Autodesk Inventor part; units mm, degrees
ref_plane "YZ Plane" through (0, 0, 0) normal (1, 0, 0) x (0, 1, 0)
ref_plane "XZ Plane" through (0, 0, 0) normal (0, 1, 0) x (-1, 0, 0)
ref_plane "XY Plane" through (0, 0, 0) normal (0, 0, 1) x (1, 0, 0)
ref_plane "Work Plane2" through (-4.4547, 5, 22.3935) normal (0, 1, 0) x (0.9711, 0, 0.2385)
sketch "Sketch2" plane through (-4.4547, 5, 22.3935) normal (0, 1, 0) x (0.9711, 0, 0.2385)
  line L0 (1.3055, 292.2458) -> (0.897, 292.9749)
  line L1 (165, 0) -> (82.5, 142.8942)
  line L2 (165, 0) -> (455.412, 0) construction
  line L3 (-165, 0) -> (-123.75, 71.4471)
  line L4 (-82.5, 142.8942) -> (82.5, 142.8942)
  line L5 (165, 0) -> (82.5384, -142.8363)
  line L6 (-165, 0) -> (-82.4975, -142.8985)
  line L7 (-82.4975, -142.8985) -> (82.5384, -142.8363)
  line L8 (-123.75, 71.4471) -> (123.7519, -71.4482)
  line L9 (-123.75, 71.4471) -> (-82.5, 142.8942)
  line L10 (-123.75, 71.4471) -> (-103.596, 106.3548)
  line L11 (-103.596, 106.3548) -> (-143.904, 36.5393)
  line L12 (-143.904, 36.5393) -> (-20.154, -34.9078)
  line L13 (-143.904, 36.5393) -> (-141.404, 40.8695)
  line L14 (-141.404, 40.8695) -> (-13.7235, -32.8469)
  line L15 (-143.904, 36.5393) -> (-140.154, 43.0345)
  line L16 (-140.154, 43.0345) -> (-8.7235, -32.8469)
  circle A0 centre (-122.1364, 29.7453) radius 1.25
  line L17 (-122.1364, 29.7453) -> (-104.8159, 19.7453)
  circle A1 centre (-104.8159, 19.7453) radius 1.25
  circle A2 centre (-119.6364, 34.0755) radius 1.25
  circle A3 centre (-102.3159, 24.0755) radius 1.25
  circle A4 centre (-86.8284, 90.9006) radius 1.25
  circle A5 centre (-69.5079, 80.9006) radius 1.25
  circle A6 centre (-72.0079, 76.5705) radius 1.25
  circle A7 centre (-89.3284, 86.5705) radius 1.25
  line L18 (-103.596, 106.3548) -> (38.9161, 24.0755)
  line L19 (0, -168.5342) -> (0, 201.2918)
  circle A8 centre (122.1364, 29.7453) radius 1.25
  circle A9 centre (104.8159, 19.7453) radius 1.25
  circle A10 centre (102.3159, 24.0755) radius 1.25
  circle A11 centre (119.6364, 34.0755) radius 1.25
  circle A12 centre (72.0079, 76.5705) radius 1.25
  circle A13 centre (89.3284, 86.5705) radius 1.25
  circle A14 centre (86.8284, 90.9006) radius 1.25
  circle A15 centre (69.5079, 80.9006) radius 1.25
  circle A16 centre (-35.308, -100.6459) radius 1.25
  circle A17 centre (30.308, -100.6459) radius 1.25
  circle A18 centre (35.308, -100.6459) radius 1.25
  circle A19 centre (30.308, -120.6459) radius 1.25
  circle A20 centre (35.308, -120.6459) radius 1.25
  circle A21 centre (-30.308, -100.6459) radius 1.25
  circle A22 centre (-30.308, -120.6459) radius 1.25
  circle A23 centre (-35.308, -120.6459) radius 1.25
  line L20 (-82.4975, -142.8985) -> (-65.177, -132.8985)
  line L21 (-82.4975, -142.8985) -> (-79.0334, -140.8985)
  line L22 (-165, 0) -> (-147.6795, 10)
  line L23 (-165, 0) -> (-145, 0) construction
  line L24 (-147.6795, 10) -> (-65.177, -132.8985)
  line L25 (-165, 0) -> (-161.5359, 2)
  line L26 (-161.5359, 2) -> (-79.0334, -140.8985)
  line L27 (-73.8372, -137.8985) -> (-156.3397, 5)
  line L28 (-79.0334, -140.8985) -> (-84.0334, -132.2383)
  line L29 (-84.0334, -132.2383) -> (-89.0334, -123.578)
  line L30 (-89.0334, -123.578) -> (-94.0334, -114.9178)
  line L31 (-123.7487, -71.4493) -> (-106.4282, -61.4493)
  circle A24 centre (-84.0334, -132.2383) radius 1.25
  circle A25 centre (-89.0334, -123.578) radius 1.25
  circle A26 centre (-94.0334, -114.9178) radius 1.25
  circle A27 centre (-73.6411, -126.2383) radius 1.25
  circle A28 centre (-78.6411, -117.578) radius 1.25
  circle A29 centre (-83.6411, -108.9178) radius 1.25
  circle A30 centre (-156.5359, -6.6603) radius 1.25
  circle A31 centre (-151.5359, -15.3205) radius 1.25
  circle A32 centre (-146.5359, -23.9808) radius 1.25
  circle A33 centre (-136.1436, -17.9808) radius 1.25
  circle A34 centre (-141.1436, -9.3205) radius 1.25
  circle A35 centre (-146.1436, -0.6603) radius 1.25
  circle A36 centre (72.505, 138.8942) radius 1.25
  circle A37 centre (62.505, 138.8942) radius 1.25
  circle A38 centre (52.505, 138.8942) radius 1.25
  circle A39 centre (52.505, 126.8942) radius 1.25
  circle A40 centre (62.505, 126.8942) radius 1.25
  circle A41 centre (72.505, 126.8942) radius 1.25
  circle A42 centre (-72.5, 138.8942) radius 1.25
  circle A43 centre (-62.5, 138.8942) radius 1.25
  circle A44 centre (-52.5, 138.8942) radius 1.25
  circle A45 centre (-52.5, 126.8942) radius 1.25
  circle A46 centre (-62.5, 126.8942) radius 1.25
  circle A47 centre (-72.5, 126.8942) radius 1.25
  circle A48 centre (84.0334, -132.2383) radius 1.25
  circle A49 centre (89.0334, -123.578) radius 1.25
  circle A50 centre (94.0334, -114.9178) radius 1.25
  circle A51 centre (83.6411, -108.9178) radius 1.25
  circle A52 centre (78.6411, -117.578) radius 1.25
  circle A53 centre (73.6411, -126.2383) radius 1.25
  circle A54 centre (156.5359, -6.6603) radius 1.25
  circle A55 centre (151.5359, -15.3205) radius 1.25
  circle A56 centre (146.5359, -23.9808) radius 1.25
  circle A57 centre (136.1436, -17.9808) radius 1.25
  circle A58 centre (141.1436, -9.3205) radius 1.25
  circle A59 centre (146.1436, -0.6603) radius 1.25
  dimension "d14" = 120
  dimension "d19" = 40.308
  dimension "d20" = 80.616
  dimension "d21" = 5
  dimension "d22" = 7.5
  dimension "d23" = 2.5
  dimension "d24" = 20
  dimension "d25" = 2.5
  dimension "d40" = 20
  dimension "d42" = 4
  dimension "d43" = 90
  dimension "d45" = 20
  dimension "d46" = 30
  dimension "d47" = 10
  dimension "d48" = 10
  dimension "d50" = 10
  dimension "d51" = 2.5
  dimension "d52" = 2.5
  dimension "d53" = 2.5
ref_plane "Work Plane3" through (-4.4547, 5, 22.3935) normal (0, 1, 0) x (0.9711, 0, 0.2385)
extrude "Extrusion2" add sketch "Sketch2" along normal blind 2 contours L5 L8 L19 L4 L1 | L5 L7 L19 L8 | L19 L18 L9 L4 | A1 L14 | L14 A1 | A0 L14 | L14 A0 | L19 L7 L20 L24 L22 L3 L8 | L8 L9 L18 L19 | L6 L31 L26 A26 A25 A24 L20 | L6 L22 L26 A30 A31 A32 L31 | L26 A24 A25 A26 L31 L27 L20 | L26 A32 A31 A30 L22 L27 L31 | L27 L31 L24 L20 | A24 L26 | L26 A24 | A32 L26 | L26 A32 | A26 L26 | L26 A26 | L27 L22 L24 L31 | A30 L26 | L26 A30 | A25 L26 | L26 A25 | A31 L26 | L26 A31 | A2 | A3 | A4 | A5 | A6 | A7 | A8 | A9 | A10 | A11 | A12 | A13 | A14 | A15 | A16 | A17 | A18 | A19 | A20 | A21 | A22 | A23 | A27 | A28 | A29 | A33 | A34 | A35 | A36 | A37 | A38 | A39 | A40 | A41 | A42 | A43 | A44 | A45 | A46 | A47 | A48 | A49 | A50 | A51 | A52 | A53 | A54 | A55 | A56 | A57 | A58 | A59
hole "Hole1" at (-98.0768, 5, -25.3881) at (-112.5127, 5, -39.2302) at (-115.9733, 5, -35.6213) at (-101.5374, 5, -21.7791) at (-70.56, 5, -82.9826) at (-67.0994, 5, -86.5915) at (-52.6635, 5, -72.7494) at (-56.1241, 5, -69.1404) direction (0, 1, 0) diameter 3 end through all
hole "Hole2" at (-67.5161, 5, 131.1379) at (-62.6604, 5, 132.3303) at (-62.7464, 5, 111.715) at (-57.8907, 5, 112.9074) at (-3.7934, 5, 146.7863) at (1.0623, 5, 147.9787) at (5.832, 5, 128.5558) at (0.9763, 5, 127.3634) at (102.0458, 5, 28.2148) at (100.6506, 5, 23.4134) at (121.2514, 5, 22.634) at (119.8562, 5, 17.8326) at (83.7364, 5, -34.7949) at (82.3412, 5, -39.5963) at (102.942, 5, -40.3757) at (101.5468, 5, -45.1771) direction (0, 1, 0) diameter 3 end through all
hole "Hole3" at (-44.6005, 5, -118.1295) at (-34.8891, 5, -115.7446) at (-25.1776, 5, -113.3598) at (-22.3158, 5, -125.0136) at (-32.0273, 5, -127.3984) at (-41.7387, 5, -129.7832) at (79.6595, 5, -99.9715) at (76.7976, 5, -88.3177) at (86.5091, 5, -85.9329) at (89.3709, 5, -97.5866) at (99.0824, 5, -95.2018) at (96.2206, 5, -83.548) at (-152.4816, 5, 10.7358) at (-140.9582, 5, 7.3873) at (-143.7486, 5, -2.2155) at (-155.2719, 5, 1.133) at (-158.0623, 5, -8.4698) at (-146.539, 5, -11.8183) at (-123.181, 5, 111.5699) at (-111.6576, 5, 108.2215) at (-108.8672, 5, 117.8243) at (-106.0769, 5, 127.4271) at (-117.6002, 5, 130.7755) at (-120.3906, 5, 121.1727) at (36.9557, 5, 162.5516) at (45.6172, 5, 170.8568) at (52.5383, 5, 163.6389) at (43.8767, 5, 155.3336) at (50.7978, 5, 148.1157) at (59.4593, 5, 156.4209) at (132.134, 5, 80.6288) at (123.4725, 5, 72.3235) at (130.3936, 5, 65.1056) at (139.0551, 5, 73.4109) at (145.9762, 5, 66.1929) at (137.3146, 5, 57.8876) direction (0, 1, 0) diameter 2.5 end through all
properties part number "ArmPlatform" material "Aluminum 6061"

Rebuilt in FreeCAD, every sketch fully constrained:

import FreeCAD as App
import Part
import Sketcher

doc = App.newDocument("Part")
body = doc.addObject("PartDesign::Body", "Body")

# Sketch on XZ plane
sketch1 = body.newObject("Sketcher::SketchObject", "Sketch")
sketch1.AttachmentSupport = (doc.getObject("XZ_Plane"), [""])
sketch1.MapMode = "FlatFace"
sketch1.AttachmentOffset = App.Placement(App.Vector(0, 0, -5), App.Rotation())
sketch1.addGeometry(Part.LineSegment(App.Vector(155.783413, 61.747624, 0), App.Vector(109.74603, -96.699723, 0)), False)
sketch1.addGeometry(Part.LineSegment(App.Vector(109.74603, -96.699723, 0), App.Vector(-50.492083, -136.053847, 0)), False)
sketch1.addGeometry(Part.LineSegment(App.Vector(-50.492083, -136.053847, 0), App.Vector(-132.030014, -51.022755, 0)), False)
sketch1.addGeometry(Part.LineSegment(App.Vector(-132.030014, -51.022755, 0), App.Vector(-164.692813, -16.960624, 0)), False)
sketch1.addGeometry(Part.LineSegment(App.Vector(-164.692813, -16.960624, 0), App.Vector(-118.654028, 141.491495, 0)), False)
sketch1.addGeometry(Part.LineSegment(App.Vector(-118.654028, 141.491495, 0), App.Vector(41.633785, 180.793777, 0)), False)
sketch1.addGeometry(Part.LineSegment(App.Vector(41.633785, 180.793777, 0), App.Vector(155.783413, 61.747624, 0)), False)
sketch1.addConstraint(Sketcher.Constraint("Coincident", 0, 2, 1, 1))
sketch1.addConstraint(Sketcher.Constraint("Coincident", 1, 2, 2, 1))
sketch1.addConstraint(Sketcher.Constraint("Coincident", 2, 2, 3, 1))
sketch1.addConstraint(Sketcher.Constraint("Coincident", 3, 2, 4, 1))
sketch1.addConstraint(Sketcher.Constraint("Coincident", 4, 2, 5, 1))
sketch1.addConstraint(Sketcher.Constraint("Coincident", 5, 2, 6, 1))
sketch1.addConstraint(Sketcher.Constraint("Coincident", 6, 2, 0, 1))
sketch1.addConstraint(Sketcher.Constraint("Distance", 0, 165.0))
sketch1.addConstraint(Sketcher.Constraint("Distance", 1, 165.0))
sketch1.addConstraint(Sketcher.Constraint("DistanceX", 4, 2, 0, 2, 228.4))
sketch1.addConstraint(Sketcher.Constraint("DistanceX", 2, 2, -1, 1, 132.03))
sketch1.addConstraint(Sketcher.Constraint("Distance", 2, 117.808))
sketch1.addConstraint(Sketcher.Constraint("Distance", 3, 47.192))
sketch1.addConstraint(Sketcher.Constraint("Distance", 4, 165.005))
sketch1.addConstraint(Sketcher.Constraint("Distance", 5, 165.036))
sketch1.addConstraint(Sketcher.Constraint("DistanceX", -1, 1, 0, 2, 109.746))
sketch1.addConstraint(Sketcher.Constraint("DistanceX", 1, 2, -1, 1, 50.492))
sketch1.addConstraint(Sketcher.Constraint("DistanceY", 0, 2, 3, 2, 79.739))
sketch1.addConstraint(Sketcher.Constraint("Distance", 6, 164.9307))
sketch1.addConstraint(Sketcher.Constraint("DistanceY", 0, 2, -1, 1, 96.6997))
sketch1.addConstraint(Sketcher.Constraint("DistanceX", -1, 1, 5, 2, 41.6338))
pad1 = body.newObject("PartDesign::Pad", "Pad")
pad1.Profile = sketch1
pad1.Length = 2
pad1.Reversed = True

# Sketch on XZ plane
sketch2 = body.newObject("Sketcher::SketchObject", "Sketch001")
sketch2.AttachmentSupport = (doc.getObject("XZ_Plane"), [""])
sketch2.MapMode = "FlatFace"
sketch2.AttachmentOffset = App.Placement(App.Vector(0, 0, -5), App.Rotation())
sketch2.addGeometry(Part.Circle(App.Vector(-98.0768, -25.3881, 0), App.Vector(0, 0, 1), 1.5), False)
sketch2.addGeometry(Part.Circle(App.Vector(-112.5127, -39.2302, 0), App.Vector(0, 0, 1), 1.5), False)
sketch2.addGeometry(Part.Circle(App.Vector(-115.9733, -35.6213, 0), App.Vector(0, 0, 1), 1.5), False)
sketch2.addGeometry(Part.Circle(App.Vector(-101.5374, -21.7791, 0), App.Vector(0, 0, 1), 1.5), False)
sketch2.addGeometry(Part.Circle(App.Vector(-70.56, -82.9826, 0), App.Vector(0, 0, 1), 1.5), False)
sketch2.addGeometry(Part.Circle(App.Vector(-67.0994, -86.5915, 0), App.Vector(0, 0, 1), 1.5), False)
sketch2.addGeometry(Part.Circle(App.Vector(-52.6635, -72.7494, 0), App.Vector(0, 0, 1), 1.5), False)
sketch2.addGeometry(Part.Circle(App.Vector(-56.1241, -69.1404, 0), App.Vector(0, 0, 1), 1.5), False)
sketch2.addConstraint(Sketcher.Constraint("Equal", 0, 1))
sketch2.addConstraint(Sketcher.Constraint("Equal", 1, 2))
sketch2.addConstraint(Sketcher.Constraint("Equal", 2, 3))
sketch2.addConstraint(Sketcher.Constraint("Equal", 3, 4))
sketch2.addConstraint(Sketcher.Constraint("Equal", 4, 5))
sketch2.addConstraint(Sketcher.Constraint("Equal", 5, 6))
sketch2.addConstraint(Sketcher.Constraint("Equal", 6, 7))
sketch2.addConstraint(Sketcher.Constraint("Diameter", 0, 3.0))
sketch2.addConstraint(Sketcher.Constraint("DistanceX", 4, 3, -1, 1, 70.56))
sketch2.addConstraint(Sketcher.Constraint("DistanceY", 0, 3, -1, 1, 25.388))
sketch2.addConstraint(Sketcher.Constraint("DistanceY", 3, 3, -1, 1, 21.779))
sketch2.addConstraint(Sketcher.Constraint("DistanceX", 7, 3, -1, 1, 56.124))
sketch2.addConstraint(Sketcher.Constraint("DistanceX", 1, 3, 0, 3, 14.436))
sketch2.addConstraint(Sketcher.Constraint("DistanceY", 1, 3, 0, 3, 13.842))
sketch2.addConstraint(Sketcher.Constraint("DistanceY", 1, 3, 2, 3, 3.609))
sketch2.addConstraint(Sketcher.Constraint("DistanceX", 2, 3, 3, 3, 14.436))
sketch2.addConstraint(Sketcher.Constraint("DistanceY", 5, 3, 4, 3, 3.609))
sketch2.addConstraint(Sketcher.Constraint("DistanceX", 2, 3, 5, 3, 48.874))
sketch2.addConstraint(Sketcher.Constraint("DistanceX", 5, 3, 6, 3, 14.436))
sketch2.addConstraint(Sketcher.Constraint("DistanceY", 5, 3, 6, 3, 13.842))
sketch2.addConstraint(Sketcher.Constraint("DistanceY", 6, 3, 7, 3, 3.609))
sketch2.addConstraint(Sketcher.Constraint("DistanceX", 0, 3, -1, 1, 98.0768))
sketch2.addConstraint(Sketcher.Constraint("DistanceX", 2, 3, -1, 1, 115.9733))
sketch2.addConstraint(Sketcher.Constraint("DistanceY", 4, 3, -1, 1, 82.9826))
doc.recompute()
hole = body.newObject("PartDesign::Hole", "Hole")
hole.Profile = sketch2
hole.ThreadType = "None"
hole.Diameter = 3
hole.DepthType = "ThroughAll"

# Sketch on XZ plane
sketch3 = body.newObject("Sketcher::SketchObject", "Sketch002")
sketch3.AttachmentSupport = (doc.getObject("XZ_Plane"), [""])
sketch3.MapMode = "FlatFace"
sketch3.AttachmentOffset = App.Placement(App.Vector(0, 0, -5), App.Rotation())
sketch3.addGeometry(Part.Circle(App.Vector(-67.5161, 131.1379, 0), App.Vector(0, 0, 1), 1.5), False)
sketch3.addGeometry(Part.Circle(App.Vector(-62.6604, 132.3303, 0), App.Vector(0, 0, 1), 1.5), False)
sketch3.addGeometry(Part.Circle(App.Vector(-62.7464, 111.715, 0), App.Vector(0, 0, 1), 1.5), False)
sketch3.addGeometry(Part.Circle(App.Vector(-57.8907, 112.9074, 0), App.Vector(0, 0, 1), 1.5), False)
sketch3.addGeometry(Part.Circle(App.Vector(-3.7934, 146.7863, 0), App.Vector(0, 0, 1), 1.5), False)
sketch3.addGeometry(Part.Circle(App.Vector(1.0623, 147.9787, 0), App.Vector(0, 0, 1), 1.5), False)
sketch3.addGeometry(Part.Circle(App.Vector(5.832, 128.5558, 0), App.Vector(0, 0, 1), 1.5), False)
sketch3.addGeometry(Part.Circle(App.Vector(0.9763, 127.3634, 0), App.Vector(0, 0, 1), 1.5), False)
sketch3.addGeometry(Part.Circle(App.Vector(102.0458, 28.2148, 0), App.Vector(0, 0, 1), 1.5), False)
sketch3.addGeometry(Part.Circle(App.Vector(100.6506, 23.4134, 0), App.Vector(0, 0, 1), 1.5), False)
sketch3.addGeometry(Part.Circle(App.Vector(121.2514, 22.634, 0), App.Vector(0, 0, 1), 1.5), False)
sketch3.addGeometry(Part.Circle(App.Vector(119.8562, 17.8326, 0), App.Vector(0, 0, 1), 1.5), False)
sketch3.addGeometry(Part.Circle(App.Vector(83.7364, -34.7949, 0), App.Vector(0, 0, 1), 1.5), False)
sketch3.addGeometry(Part.Circle(App.Vector(82.3412, -39.5963, 0), App.Vector(0, 0, 1), 1.5), False)
sketch3.addGeometry(Part.Circle(App.Vector(102.942, -40.3757, 0), App.Vector(0, 0, 1), 1.5), False)
sketch3.addGeometry(Part.Circle(App.Vector(101.5468, -45.1771, 0), App.Vector(0, 0, 1), 1.5), False)
sketch3.addConstraint(Sketcher.Constraint("Equal", 0, 1))
sketch3.addConstraint(Sketcher.Constraint("Equal", 1, 2))
sketch3.addConstraint(Sketcher.Constraint("Equal", 2, 3))
sketch3.addConstraint(Sketcher.Constraint("Equal", 3, 4))
sketch3.addConstraint(Sketcher.Constraint("Equal", 4, 5))
sketch3.addConstraint(Sketcher.Constraint("Equal", 5, 6))
sketch3.addConstraint(Sketcher.Constraint("Equal", 6, 7))
sketch3.addConstraint(Sketcher.Constraint("Equal", 7, 8))
sketch3.addConstraint(Sketcher.Constraint("Equal", 8, 9))
sketch3.addConstraint(Sketcher.Constraint("Equal", 9, 10))
sketch3.addConstraint(Sketcher.Constraint("Equal", 10, 11))
sketch3.addConstraint(Sketcher.Constraint("Equal", 11, 12))
sketch3.addConstraint(Sketcher.Constraint("Equal", 12, 13))
sketch3.addConstraint(Sketcher.Constraint("Equal", 13, 14))
sketch3.addConstraint(Sketcher.Constraint("Equal", 14, 15))
sketch3.addConstraint(Sketcher.Constraint("Diameter", 0, 3.0))
sketch3.addConstraint(Sketcher.Constraint("DistanceY", 9, 3, 7, 3, 103.95))
sketch3.addConstraint(Sketcher.Constraint("DistanceX", 7, 3, 11, 3, 118.88))
sketch3.addConstraint(Sketcher.Constraint("DistanceX", 0, 3, -1, 1, 67.516))
sketch3.addConstraint(Sketcher.Constraint("DistanceY", -1, 1, 0, 3, 131.138))
sketch3.addConstraint(Sketcher.Constraint("DistanceY", -1, 1, 2, 3, 111.715))
sketch3.addConstraint(Sketcher.Constraint("DistanceX", -1, 1, 6, 3, 5.832))
sketch3.addConstraint(Sketcher.Constraint("DistanceY", -1, 1, 10, 3, 22.634))
sketch3.addConstraint(Sketcher.Constraint("DistanceY", 12, 3, -1, 1, 34.795))
sketch3.addConstraint(Sketcher.Constraint("DistanceX", -1, 1, 14, 3, 102.942))
sketch3.addConstraint(Sketcher.Constraint("DistanceY", 15, 3, -1, 1, 45.177))
sketch3.addConstraint(Sketcher.Constraint("DistanceX", 2, 3, 1, 3, 0.086))
sketch3.addConstraint(Sketcher.Constraint("DistanceY", 3, 3, 1, 3, 19.423))
sketch3.addConstraint(Sketcher.Constraint("DistanceX", 1, 3, 4, 3, 58.867))
sketch3.addConstraint(Sketcher.Constraint("DistanceY", 1, 3, 4, 3, 14.456))
sketch3.addConstraint(Sketcher.Constraint("DistanceX", 3, 3, 5, 3, 58.953))
sketch3.addConstraint(Sketcher.Constraint("DistanceY", 6, 3, 5, 3, 19.423))
sketch3.addConstraint(Sketcher.Constraint("DistanceY", 7, 3, 4, 3, 19.423))
sketch3.addConstraint(Sketcher.Constraint("DistanceX", 7, 3, 5, 3, 0.086))
sketch3.addConstraint(Sketcher.Constraint("DistanceY", 8, 3, 6, 3, 100.341))
sketch3.addConstraint(Sketcher.Constraint("DistanceX", 4, 3, 9, 3, 104.444))
sketch3.addConstraint(Sketcher.Constraint("DistanceX", 7, 3, 10, 3, 120.275))
sketch3.addConstraint(Sketcher.Constraint("DistanceX", 12, 3, 10, 3, 37.515))
sketch3.addConstraint(Sketcher.Constraint("DistanceX", 13, 3, 11, 3, 37.515))
sketch3.addConstraint(Sketcher.Constraint("DistanceY", 13, 3, 11, 3, 57.429))
sketch3.addConstraint(Sketcher.Constraint("DistanceY", 13, 3, 8, 3, 67.811))
sketch3.addConstraint(Sketcher.Constraint("DistanceY", 14, 3, 9, 3, 63.789))
sketch3.addConstraint(Sketcher.Constraint("DistanceX", 1, 3, -1, 1, 62.6604))
sketch3.addConstraint(Sketcher.Constraint("DistanceY", -1, 1, 1, 3, 132.3303))
sketch3.addConstraint(Sketcher.Constraint("DistanceX", 3, 3, -1, 1, 57.8907))
sketch3.addConstraint(Sketcher.Constraint("DistanceY", -1, 1, 5, 3, 147.9787))
sketch3.addConstraint(Sketcher.Constraint("DistanceX", -1, 1, 8, 3, 102.0458))
sketch3.addConstraint(Sketcher.Constraint("DistanceX", -1, 1, 15, 3, 101.5468))
doc.recompute()
hole2 = body.newObject("PartDesign::Hole", "Hole001")
hole2.Profile = sketch3
hole2.ThreadType = "None"
hole2.Diameter = 3
hole2.DepthType = "ThroughAll"

# Sketch on XZ plane
sketch4 = body.newObject("Sketcher::SketchObject", "Sketch003")
sketch4.AttachmentSupport = (doc.getObject("XZ_Plane"), [""])
sketch4.MapMode = "FlatFace"
sketch4.AttachmentOffset = App.Placement(App.Vector(0, 0, -5), App.Rotation())
sketch4.addGeometry(Part.Circle(App.Vector(-44.6005, -118.1295, 0), App.Vector(0, 0, 1), 1.25), False)
sketch4.addGeometry(Part.Circle(App.Vector(-34.8891, -115.7446, 0), App.Vector(0, 0, 1), 1.25), False)
sketch4.addGeometry(Part.Circle(App.Vector(-25.1776, -113.3598, 0), App.Vector(0, 0, 1), 1.25), False)
sketch4.addGeometry(Part.Circle(App.Vector(-22.3158, -125.0136, 0), App.Vector(0, 0, 1), 1.25), False)
sketch4.addGeometry(Part.Circle(App.Vector(-32.0273, -127.3984, 0), App.Vector(0, 0, 1), 1.25), False)
sketch4.addGeometry(Part.Circle(App.Vector(-41.7387, -129.7832, 0), App.Vector(0, 0, 1), 1.25), False)
sketch4.addGeometry(Part.Circle(App.Vector(79.6595, -99.9715, 0), App.Vector(0, 0, 1), 1.25), False)
sketch4.addGeometry(Part.Circle(App.Vector(76.7976, -88.3177, 0), App.Vector(0, 0, 1), 1.25), False)
sketch4.addGeometry(Part.Circle(App.Vector(86.5091, -85.9329, 0), App.Vector(0, 0, 1), 1.25), False)
sketch4.addGeometry(Part.Circle(App.Vector(89.3709, -97.5866, 0), App.Vector(0, 0, 1), 1.25), False)
sketch4.addGeometry(Part.Circle(App.Vector(99.0824, -95.2018, 0), App.Vector(0, 0, 1), 1.25), False)
sketch4.addGeometry(Part.Circle(App.Vector(96.2206, -83.548, 0), App.Vector(0, 0, 1), 1.25), False)
sketch4.addGeometry(Part.Circle(App.Vector(-152.4816, 10.7358, 0), App.Vector(0, 0, 1), 1.25), False)
sketch4.addGeometry(Part.Circle(App.Vector(-140.9582, 7.3873, 0), App.Vector(0, 0, 1), 1.25), False)
sketch4.addGeometry(Part.Circle(App.Vector(-143.7486, -2.2155, 0), App.Vector(0, 0, 1), 1.25), False)
sketch4.addGeometry(Part.Circle(App.Vector(-155.2719, 1.133, 0), App.Vector(0, 0, 1), 1.25), False)
sketch4.addGeometry(Part.Circle(App.Vector(-158.0623, -8.4698, 0), App.Vector(0, 0, 1), 1.25), False)
sketch4.addGeometry(Part.Circle(App.Vector(-146.539, -11.8183, 0), App.Vector(0, 0, 1), 1.25), False)
sketch4.addGeometry(Part.Circle(App.Vector(-123.181, 111.5699, 0), App.Vector(0, 0, 1), 1.25), False)
sketch4.addGeometry(Part.Circle(App.Vector(-111.6576, 108.2215, 0), App.Vector(0, 0, 1), 1.25), False)
sketch4.addGeometry(Part.Circle(App.Vector(-108.8672, 117.8243, 0), App.Vector(0, 0, 1), 1.25), False)
sketch4.addGeometry(Part.Circle(App.Vector(-106.0769, 127.4271, 0), App.Vector(0, 0, 1), 1.25), False)
sketch4.addGeometry(Part.Circle(App.Vector(-117.6002, 130.7755, 0), App.Vector(0, 0, 1), 1.25), False)
sketch4.addGeometry(Part.Circle(App.Vector(-120.3906, 121.1727, 0), App.Vector(0, 0, 1), 1.25), False)
sketch4.addGeometry(Part.Circle(App.Vector(36.9557, 162.5516, 0), App.Vector(0, 0, 1), 1.25), False)
sketch4.addGeometry(Part.Circle(App.Vector(45.6172, 170.8568, 0), App.Vector(0, 0, 1), 1.25), False)
sketch4.addGeometry(Part.Circle(App.Vector(52.5383, 163.6389, 0), App.Vector(0, 0, 1), 1.25), False)
sketch4.addGeometry(Part.Circle(App.Vector(43.8767, 155.3336, 0), App.Vector(0, 0, 1), 1.25), False)
sketch4.addGeometry(Part.Circle(App.Vector(50.7978, 148.1157, 0), App.Vector(0, 0, 1), 1.25), False)
sketch4.addGeometry(Part.Circle(App.Vector(59.4593, 156.4209, 0), App.Vector(0, 0, 1), 1.25), False)
sketch4.addGeometry(Part.Circle(App.Vector(132.134, 80.6288, 0), App.Vector(0, 0, 1), 1.25), False)
sketch4.addGeometry(Part.Circle(App.Vector(123.4725, 72.3235, 0), App.Vector(0, 0, 1), 1.25), False)
sketch4.addGeometry(Part.Circle(App.Vector(130.3936, 65.1056, 0), App.Vector(0, 0, 1), 1.25), False)
sketch4.addGeometry(Part.Circle(App.Vector(139.0551, 73.4109, 0), App.Vector(0, 0, 1), 1.25), False)
sketch4.addGeometry(Part.Circle(App.Vector(145.9762, 66.1929, 0), App.Vector(0, 0, 1), 1.25), False)
sketch4.addGeometry(Part.Circle(App.Vector(137.3146, 57.8876, 0), App.Vector(0, 0, 1), 1.25), False)
sketch4.addConstraint(Sketcher.Constraint("Equal", 0, 1))
sketch4.addConstraint(Sketcher.Constraint("Equal", 1, 2))
sketch4.addConstraint(Sketcher.Constraint("Equal", 2, 3))
sketch4.addConstraint(Sketcher.Constraint("Equal", 3, 4))
sketch4.addConstraint(Sketcher.Constraint("Equal", 4, 5))
sketch4.addConstraint(Sketcher.Constraint("Equal", 5, 6))
sketch4.addConstraint(Sketcher.Constraint("Equal", 6, 7))
sketch4.addConstraint(Sketcher.Constraint("Equal", 7, 8))
sketch4.addConstraint(Sketcher.Constraint("Equal", 8, 9))
sketch4.addConstraint(Sketcher.Constraint("Equal", 9, 10))
sketch4.addConstraint(Sketcher.Constraint("Equal", 10, 11))
sketch4.addConstraint(Sketcher.Constraint("Equal", 11, 12))
sketch4.addConstraint(Sketcher.Constraint("Equal", 12, 13))
sketch4.addConstraint(Sketcher.Constraint("Equal", 13, 14))
sketch4.addConstraint(Sketcher.Constraint("Equal", 14, 15))
sketch4.addConstraint(Sketcher.Constraint("Equal", 15, 16))
sketch4.addConstraint(Sketcher.Constraint("Equal", 16, 17))
sketch4.addConstraint(Sketcher.Constraint("Equal", 17, 18))
sketch4.addConstraint(Sketcher.Constraint("Equal", 18, 19))
sketch4.addConstraint(Sketcher.Constraint("Equal", 19, 20))
sketch4.addConstraint(Sketcher.Constraint("Equal", 20, 21))
sketch4.addConstraint(Sketcher.Constraint("Equal", 21, 22))
sketch4.addConstraint(Sketcher.Constraint("Equal", 22, 23))
sketch4.addConstraint(Sketcher.Constraint("Equal", 23, 24))
sketch4.addConstraint(Sketcher.Constraint("Equal", 24, 25))
sketch4.addConstraint(Sketcher.Constraint("Equal", 25, 26))
sketch4.addConstraint(Sketcher.Constraint("Equal", 26, 27))
sketch4.addConstraint(Sketcher.Constraint("Equal", 27, 28))
sketch4.addConstraint(Sketcher.Constraint("Equal", 28, 29))
sketch4.addConstraint(Sketcher.Constraint("Equal", 29, 30))
sketch4.addConstraint(Sketcher.Constraint("Equal", 30, 31))
sketch4.addConstraint(Sketcher.Constraint("Equal", 31, 32))
sketch4.addConstraint(Sketcher.Constraint("Equal", 32, 33))
sketch4.addConstraint(Sketcher.Constraint("Equal", 33, 34))
sketch4.addConstraint(Sketcher.Constraint("Equal", 34, 35))
sketch4.addConstraint(Sketcher.Constraint("Diameter", 0, 2.5))
sketch4.addConstraint(Sketcher.Constraint("DistanceY", -1, 1, 18, 3, 111.57))
sketch4.addConstraint(Sketcher.Constraint("DistanceY", 19, 3, 24, 3, 54.33))
sketch4.addConstraint(Sketcher.Constraint("DistanceY", 30, 3, 26, 3, 83.01))
sketch4.addConstraint(Sketcher.Constraint("DistanceY", 31, 3, 27, 3, 83.01))
sketch4.addConstraint(Sketcher.Constraint("DistanceY", 32, 3, 28, 3, 83.01))
sketch4.addConstraint(Sketcher.Constraint("DistanceY", 33, 3, 29, 3, 83.01))
sketch4.addConstraint(Sketcher.Constraint("DistanceX", 1, 3, -1, 1, 34.889))
sketch4.addConstraint(Sketcher.Constraint("DistanceX", -1, 1, 8, 3, 86.509))
sketch4.addConstraint(Sketcher.Constraint("DistanceY", 8, 3, -1, 1, 85.933))
sketch4.addConstraint(Sketcher.Constraint("DistanceX", -1, 1, 9, 3, 89.371))
sketch4.addConstraint(Sketcher.Constraint("DistanceY", 11, 3, -1, 1, 83.548))
sketch4.addConstraint(Sketcher.Constraint("DistanceX", 15, 3, -1, 1, 155.272))
sketch4.addConstraint(Sketcher.Constraint("DistanceY", -1, 1, 15, 3, 1.133))
sketch4.addConstraint(Sketcher.Constraint("DistanceX", 17, 3, -1, 1, 146.539))
sketch4.addConstraint(Sketcher.Constraint("DistanceX", 18, 3, -1, 1, 123.181))
sketch4.addConstraint(Sketcher.Constraint("DistanceX", 21, 3, -1, 1, 106.077))
sketch4.addConstraint(Sketcher.Constraint("DistanceY", -1, 1, 21, 3, 127.427))
sketch4.addConstraint(Sketcher.Constraint("DistanceY", -1, 1, 26, 3, 163.639))
sketch4.addConstraint(Sketcher.Constraint("DistanceY", -1, 1, 29, 3, 156.421))
sketch4.addConstraint(Sketcher.Constraint("DistanceX", -1, 1, 30, 3, 132.134))
sketch4.addConstraint(Sketcher.Constraint("DistanceX", -1, 1, 33, 3, 139.055))
sketch4.addConstraint(Sketcher.Constraint("DistanceY", -1, 1, 34, 3, 66.193))
sketch4.addConstraint(Sketcher.Constraint("DistanceY", 0, 3, 1, 3, 2.385))
sketch4.addConstraint(Sketcher.Constraint("DistanceX", 0, 3, 2, 3, 19.423))
sketch4.addConstraint(Sketcher.Constraint("DistanceY", 3, 3, 1, 3, 9.269))
sketch4.addConstraint(Sketcher.Constraint("DistanceY", 4, 3, 0, 3, 9.269))
sketch4.addConstraint(Sketcher.Constraint("DistanceX", 5, 3, 3, 3, 19.423))
sketch4.addConstraint(Sketcher.Constraint("DistanceX", 5, 3, 2, 3, 16.561))
sketch4.addConstraint(Sketcher.Constraint("DistanceY", 3, 3, 6, 3, 25.042))
sketch4.addConstraint(Sketcher.Constraint("DistanceX", 2, 3, 6, 3, 104.837))
sketch4.addConstraint(Sketcher.Constraint("DistanceX", 7, 3, 6, 3, 2.862))
sketch4.addConstraint(Sketcher.Constraint("DistanceY", 2, 3, 7, 3, 25.042))
sketch4.addConstraint(Sketcher.Constraint("DistanceY", 3, 3, 7, 3, 36.696))
sketch4.addConstraint(Sketcher.Constraint("DistanceX", 4, 3, 7, 3, 108.825))
sketch4.addConstraint(Sketcher.Constraint("DistanceY", 2, 3, 8, 3, 27.427))
sketch4.addConstraint(Sketcher.Constraint("DistanceX", 3, 3, 8, 3, 108.825))
sketch4.addConstraint(Sketcher.Constraint("DistanceY", 6, 3, 9, 3, 2.385))
sketch4.addConstraint(Sketcher.Constraint("DistanceY", 10, 3, 8, 3, 9.269))
sketch4.addConstraint(Sketcher.Constraint("DistanceX", 6, 3, 10, 3, 19.423))
sketch4.addConstraint(Sketcher.Constraint("DistanceX", 7, 3, 11, 3, 19.423))
sketch4.addConstraint(Sketcher.Constraint("DistanceX", 12, 3, 0, 3, 107.881))
sketch4.addConstraint(Sketcher.Constraint("DistanceY", 5, 3, 12, 3, 140.519))
sketch4.addConstraint(Sketcher.Constraint("DistanceX", 13, 3, 1, 3, 106.069))
sketch4.addConstraint(Sketcher.Constraint("DistanceY", 1, 3, 13, 3, 123.132))
sketch4.addConstraint(Sketcher.Constraint("DistanceX", 12, 3, 14, 3, 8.733))
sketch4.addConstraint(Sketcher.Constraint("DistanceY", 0, 3, 14, 3, 115.914))
sketch4.addConstraint(Sketcher.Constraint("DistanceX", 16, 3, 13, 3, 17.104))
sketch4.addConstraint(Sketcher.Constraint("DistanceY", 16, 3, 13, 3, 15.857))
sketch4.addConstraint(Sketcher.Constraint("DistanceY", 17, 3, 12, 3, 22.554))
sketch4.addConstraint(Sketcher.Constraint("DistanceY", 12, 3, 18, 3, 100.834))
sketch4.addConstraint(Sketcher.Constraint("DistanceX", 12, 3, 19, 3, 40.824))
sketch4.addConstraint(Sketcher.Constraint("DistanceY", 14, 3, 19, 3, 110.437))
sketch4.addConstraint(Sketcher.Constraint("DistanceX", 13, 3, 20, 3, 32.091))
sketch4.addConstraint(Sketcher.Constraint("DistanceY", 13, 3, 20, 3, 110.437))
sketch4.addConstraint(Sketcher.Constraint("DistanceX", 22, 3, 20, 3, 8.733))
sketch4.addConstraint(Sketcher.Constraint("DistanceY", 19, 3, 22, 3, 22.554))
sketch4.addConstraint(Sketcher.Constraint("DistanceX", 23, 3, 19, 3, 8.733))
sketch4.addConstraint(Sketcher.Constraint("DistanceX", 20, 3, 24, 3, 145.823))
sketch4.addConstraint(Sketcher.Constraint("DistanceY", 23, 3, 24, 3, 41.379))
sketch4.addConstraint(Sketcher.Constraint("DistanceX", 21, 3, 25, 3, 151.694))
sketch4.addConstraint(Sketcher.Constraint("DistanceX", 25, 3, 26, 3, 6.921))
sketch4.addConstraint(Sketcher.Constraint("DistanceY", 26, 3, 25, 3, 7.218))
sketch4.addConstraint(Sketcher.Constraint("DistanceX", 24, 3, 27, 3, 6.921))
sketch4.addConstraint(Sketcher.Constraint("DistanceY", 27, 3, 24, 3, 7.218))
sketch4.addConstraint(Sketcher.Constraint("DistanceX", 27, 3, 28, 3, 6.921))
sketch4.addConstraint(Sketcher.Constraint("DistanceY", 28, 3, 27, 3, 7.218))
sketch4.addConstraint(Sketcher.Constraint("DistanceX", 26, 3, 29, 3, 6.921))
sketch4.addConstraint(Sketcher.Constraint("DistanceX", 31, 3, 32, 3, 6.921))
sketch4.addConstraint(Sketcher.Constraint("DistanceX", 27, 3, 32, 3, 86.517))
sketch4.addConstraint(Sketcher.Constraint("DistanceX", 33, 3, 34, 3, 6.921))
sketch4.addConstraint(Sketcher.Constraint("DistanceX", 32, 3, 35, 3, 6.921))
sketch4.addConstraint(Sketcher.Constraint("DistanceY", 35, 3, 32, 3, 7.218))
doc.recompute()
hole3 = body.newObject("PartDesign::Hole", "Hole002")
hole3.Profile = sketch4
hole3.ThreadType = "None"
hole3.Diameter = 2.5
hole3.DepthType = "ThroughAll"

doc.recompute()
